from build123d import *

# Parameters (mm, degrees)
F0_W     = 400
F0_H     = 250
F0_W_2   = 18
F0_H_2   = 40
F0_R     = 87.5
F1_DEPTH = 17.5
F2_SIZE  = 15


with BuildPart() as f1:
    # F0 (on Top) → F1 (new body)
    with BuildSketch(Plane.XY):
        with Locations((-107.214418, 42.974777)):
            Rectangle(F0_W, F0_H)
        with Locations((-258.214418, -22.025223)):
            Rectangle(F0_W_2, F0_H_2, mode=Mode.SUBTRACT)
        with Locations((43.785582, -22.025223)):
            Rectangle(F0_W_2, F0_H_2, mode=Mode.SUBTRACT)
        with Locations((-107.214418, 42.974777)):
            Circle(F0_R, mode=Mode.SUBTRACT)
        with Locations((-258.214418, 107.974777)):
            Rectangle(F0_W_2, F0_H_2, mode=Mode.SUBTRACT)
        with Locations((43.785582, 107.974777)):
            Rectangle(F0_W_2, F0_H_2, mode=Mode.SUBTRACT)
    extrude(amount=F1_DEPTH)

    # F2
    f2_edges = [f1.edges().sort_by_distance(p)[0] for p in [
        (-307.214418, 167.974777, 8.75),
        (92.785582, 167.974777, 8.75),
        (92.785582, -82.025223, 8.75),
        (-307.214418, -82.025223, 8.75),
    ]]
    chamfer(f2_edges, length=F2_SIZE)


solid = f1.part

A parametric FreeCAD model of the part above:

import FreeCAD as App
import Part
import Sketcher
from FreeCAD import Vector
Q = App.Units.Quantity


def edges_at(feature, points):
    """Names of the edges that pass closest to the given points."""
    edges = feature.Shape.Edges
    near = lambda p: min(range(len(edges)), key=lambda i: edges[i].distToShape(Part.Vertex(*p))[0])
    return sorted({f"Edge{near(p) + 1}" for p in points})

doc = App.newDocument("Part")
body = doc.addObject("PartDesign::Body", "Body")

# Sketch on XY plane
sketch1 = body.newObject("Sketcher::SketchObject", "Sketch")
sketch1.AttachmentSupport = (doc.getObject("XY_Plane"), [""])
sketch1.MapMode = "FlatFace"
sketch1.addGeometry(Part.LineSegment(Vector(-307, 168, 0), Vector(-307, -82, 0)), False)
sketch1.addGeometry(Part.LineSegment(Vector(-307, -82, 0), Vector(93, -82, 0)), False)
sketch1.addGeometry(Part.LineSegment(Vector(93, -82, 0), Vector(93, 168, 0)), False)
sketch1.addGeometry(Part.LineSegment(Vector(93, 168, 0), Vector(-307, 168, 0)), False)
sketch1.addGeometry(Part.LineSegment(Vector(-249, -42, 0), Vector(-267, -42, 0)), False)
sketch1.addGeometry(Part.LineSegment(Vector(-267, -42, 0), Vector(-267, -2, 0)), False)
sketch1.addGeometry(Part.LineSegment(Vector(-267, -2, 0), Vector(-249, -2, 0)), False)
sketch1.addGeometry(Part.LineSegment(Vector(-249, -2, 0), Vector(-249, -42, 0)), False)
sketch1.addGeometry(Part.LineSegment(Vector(53, -42, 0), Vector(35, -42, 0)), False)
sketch1.addGeometry(Part.LineSegment(Vector(35, -42, 0), Vector(35, -2, 0)), False)
sketch1.addGeometry(Part.LineSegment(Vector(35, -2, 0), Vector(53, -2, 0)), False)
sketch1.addGeometry(Part.LineSegment(Vector(53, -2, 0), Vector(53, -42, 0)), False)
sketch1.addGeometry(Part.LineSegment(Vector(-249, 88, 0), Vector(-267, 88, 0)), False)
sketch1.addGeometry(Part.LineSegment(Vector(-267, 88, 0), Vector(-267, 128, 0)), False)
sketch1.addGeometry(Part.LineSegment(Vector(-267, 128, 0), Vector(-249, 128, 0)), False)
sketch1.addGeometry(Part.LineSegment(Vector(-249, 128, 0), Vector(-249, 88, 0)), False)
sketch1.addGeometry(Part.Circle(Vector(-107, 43, 0), Vector(0, 0, 1), 88), False)
sketch1.addGeometry(Part.LineSegment(Vector(53, 88, 0), Vector(35, 88, 0)), False)
sketch1.addGeometry(Part.LineSegment(Vector(35, 88, 0), Vector(35, 128, 0)), False)
sketch1.addGeometry(Part.LineSegment(Vector(35, 128, 0), Vector(53, 128, 0)), False)
sketch1.addGeometry(Part.LineSegment(Vector(53, 128, 0), Vector(53, 88, 0)), False)
sketch1.addConstraint(Sketcher.Constraint("Coincident", 0, 2, 1, 1))
sketch1.addConstraint(Sketcher.Constraint("Coincident", 1, 2, 2, 1))
sketch1.addConstraint(Sketcher.Constraint("Coincident", 2, 2, 3, 1))
sketch1.addConstraint(Sketcher.Constraint("Coincident", 3, 2, 0, 1))
sketch1.addConstraint(Sketcher.Constraint("Coincident", 4, 2, 5, 1))
sketch1.addConstraint(Sketcher.Constraint("Coincident", 5, 2, 6, 1))
sketch1.addConstraint(Sketcher.Constraint("Coincident", 6, 2, 7, 1))
sketch1.addConstraint(Sketcher.Constraint("Coincident", 7, 2, 4, 1))
sketch1.addConstraint(Sketcher.Constraint("Coincident", 8, 2, 9, 1))
sketch1.addConstraint(Sketcher.Constraint("Coincident", 9, 2, 10, 1))
sketch1.addConstraint(Sketcher.Constraint("Coincident", 10, 2, 11, 1))
sketch1.addConstraint(Sketcher.Constraint("Coincident", 11, 2, 8, 1))
sketch1.addConstraint(Sketcher.Constraint("Coincident", 12, 2, 13, 1))
sketch1.addConstraint(Sketcher.Constraint("Coincident", 13, 2, 14, 1))
sketch1.addConstraint(Sketcher.Constraint("Coincident", 14, 2, 15, 1))
sketch1.addConstraint(Sketcher.Constraint("Coincident", 15, 2, 12, 1))
sketch1.addConstraint(Sketcher.Constraint("Coincident", 17, 2, 18, 1))
sketch1.addConstraint(Sketcher.Constraint("Coincident", 18, 2, 19, 1))
sketch1.addConstraint(Sketcher.Constraint("Coincident", 19, 2, 20, 1))
sketch1.addConstraint(Sketcher.Constraint("Coincident", 20, 2, 17, 1))
sketch1.addConstraint(Sketcher.Constraint("Vertical", 0))
sketch1.addConstraint(Sketcher.Constraint("Horizontal", 1))
sketch1.addConstraint(Sketcher.Constraint("Vertical", 2))
sketch1.addConstraint(Sketcher.Constraint("Horizontal", 3))
sketch1.addConstraint(Sketcher.Constraint("Horizontal", 4))
sketch1.addConstraint(Sketcher.Constraint("Vertical", 5))
sketch1.addConstraint(Sketcher.Constraint("Horizontal", 6))
sketch1.addConstraint(Sketcher.Constraint("Vertical", 7))
sketch1.addConstraint(Sketcher.Constraint("Horizontal", 8))
sketch1.addConstraint(Sketcher.Constraint("Vertical", 9))
sketch1.addConstraint(Sketcher.Constraint("Horizontal", 10))
sketch1.addConstraint(Sketcher.Constraint("Vertical", 11))
sketch1.addConstraint(Sketcher.Constraint("Horizontal", 12))
sketch1.addConstraint(Sketcher.Constraint("Vertical", 13))
sketch1.addConstraint(Sketcher.Constraint("Horizontal", 14))
sketch1.addConstraint(Sketcher.Constraint("Vertical", 15))
sketch1.addConstraint(Sketcher.Constraint("Horizontal", 17))
sketch1.addConstraint(Sketcher.Constraint("Vertical", 18))
sketch1.addConstraint(Sketcher.Constraint("Horizontal", 19))
sketch1.addConstraint(Sketcher.Constraint("Vertical", 20))
sketch1.addConstraint(Sketcher.Constraint("Horizontal", 7, 2, 8, 2))
sketch1.addConstraint(Sketcher.Constraint("Horizontal", 6, 2, 9, 2))
sketch1.addConstraint(Sketcher.Constraint("Horizontal", 15, 2, 17, 2))
sketch1.addConstraint(Sketcher.Constraint("Horizontal", 14, 2, 18, 2))
sketch1.addConstraint(Sketcher.Constraint("Vertical", 5, 2, 12, 2))
sketch1.addConstraint(Sketcher.Constraint("Vertical", 7, 2, 14, 2))
sketch1.addConstraint(Sketcher.Constraint("Vertical", 9, 2, 17, 2))
sketch1.addConstraint(Sketcher.Constraint("Vertical", 11, 2, 19, 2))
sketch1.addConstraint(Sketcher.Constraint("Equal", 6, 8))
sketch1.addConstraint(Sketcher.Constraint("Equal", 11, 13))
sketch1.addConstraint(Sketcher.Constraint("Diameter", 16, Q("175 mm")))
sketch1.addConstraint(Sketcher.Constraint("DistanceX", 1, 1, 1, 2, Q("400 mm")))
sketch1.addConstraint(Sketcher.Constraint("DistanceX", 4, 2, 4, 1, Q("18 mm")))
sketch1.addConstraint(Sketcher.Constraint("DistanceY", 0, 2, 0, 1, Q("250 mm")))
sketch1.addConstraint(Sketcher.Constraint("DistanceY", 5, 1, 5, 2, Q("40 mm")))
sketch1.addConstraint(Sketcher.Constraint("DistanceX", 0, 2, 16, 3, Q("200 mm")))
sketch1.addConstraint(Sketcher.Constraint("DistanceY", 0, 2, 16, 3, Q("125 mm")))
sketch1.addConstraint(Sketcher.Constraint("DistanceX", 0, 2, 4, 2, Q("40 mm")))
sketch1.addConstraint(Sketcher.Constraint("DistanceY", 0, 2, 4, 2, Q("40 mm")))
sketch1.addConstraint(Sketcher.Constraint("DistanceX", 8, 2, 1, 2, Q("58 mm")))
sketch1.addConstraint(Sketcher.Constraint("DistanceY", 12, 2, 3, 2, Q("80 mm")))
sketch1.addConstraint(Sketcher.Constraint("DistanceX", 0, 2, -1, 1, Q("307.214418 mm")))
sketch1.addConstraint(Sketcher.Constraint("DistanceY", -1, 1, 16, 3, Q("42.974777 mm")))
pad1 = body.newObject("PartDesign::Pad", "Pad")
pad1.Profile = sketch1
pad1.Length = 17.5
doc.recompute()

chamfer = body.newObject("PartDesign::Chamfer", "Chamfer")
chamfer.Base = (pad1, edges_at(pad1, [
    (-307.214, 167.975, 8.75),
    (92.786, 167.975, 8.75),
    (92.786, -82.025, 8.75),
    (-307.214, -82.025, 8.75),
]))
chamfer.Size = 15

doc.recompute()
